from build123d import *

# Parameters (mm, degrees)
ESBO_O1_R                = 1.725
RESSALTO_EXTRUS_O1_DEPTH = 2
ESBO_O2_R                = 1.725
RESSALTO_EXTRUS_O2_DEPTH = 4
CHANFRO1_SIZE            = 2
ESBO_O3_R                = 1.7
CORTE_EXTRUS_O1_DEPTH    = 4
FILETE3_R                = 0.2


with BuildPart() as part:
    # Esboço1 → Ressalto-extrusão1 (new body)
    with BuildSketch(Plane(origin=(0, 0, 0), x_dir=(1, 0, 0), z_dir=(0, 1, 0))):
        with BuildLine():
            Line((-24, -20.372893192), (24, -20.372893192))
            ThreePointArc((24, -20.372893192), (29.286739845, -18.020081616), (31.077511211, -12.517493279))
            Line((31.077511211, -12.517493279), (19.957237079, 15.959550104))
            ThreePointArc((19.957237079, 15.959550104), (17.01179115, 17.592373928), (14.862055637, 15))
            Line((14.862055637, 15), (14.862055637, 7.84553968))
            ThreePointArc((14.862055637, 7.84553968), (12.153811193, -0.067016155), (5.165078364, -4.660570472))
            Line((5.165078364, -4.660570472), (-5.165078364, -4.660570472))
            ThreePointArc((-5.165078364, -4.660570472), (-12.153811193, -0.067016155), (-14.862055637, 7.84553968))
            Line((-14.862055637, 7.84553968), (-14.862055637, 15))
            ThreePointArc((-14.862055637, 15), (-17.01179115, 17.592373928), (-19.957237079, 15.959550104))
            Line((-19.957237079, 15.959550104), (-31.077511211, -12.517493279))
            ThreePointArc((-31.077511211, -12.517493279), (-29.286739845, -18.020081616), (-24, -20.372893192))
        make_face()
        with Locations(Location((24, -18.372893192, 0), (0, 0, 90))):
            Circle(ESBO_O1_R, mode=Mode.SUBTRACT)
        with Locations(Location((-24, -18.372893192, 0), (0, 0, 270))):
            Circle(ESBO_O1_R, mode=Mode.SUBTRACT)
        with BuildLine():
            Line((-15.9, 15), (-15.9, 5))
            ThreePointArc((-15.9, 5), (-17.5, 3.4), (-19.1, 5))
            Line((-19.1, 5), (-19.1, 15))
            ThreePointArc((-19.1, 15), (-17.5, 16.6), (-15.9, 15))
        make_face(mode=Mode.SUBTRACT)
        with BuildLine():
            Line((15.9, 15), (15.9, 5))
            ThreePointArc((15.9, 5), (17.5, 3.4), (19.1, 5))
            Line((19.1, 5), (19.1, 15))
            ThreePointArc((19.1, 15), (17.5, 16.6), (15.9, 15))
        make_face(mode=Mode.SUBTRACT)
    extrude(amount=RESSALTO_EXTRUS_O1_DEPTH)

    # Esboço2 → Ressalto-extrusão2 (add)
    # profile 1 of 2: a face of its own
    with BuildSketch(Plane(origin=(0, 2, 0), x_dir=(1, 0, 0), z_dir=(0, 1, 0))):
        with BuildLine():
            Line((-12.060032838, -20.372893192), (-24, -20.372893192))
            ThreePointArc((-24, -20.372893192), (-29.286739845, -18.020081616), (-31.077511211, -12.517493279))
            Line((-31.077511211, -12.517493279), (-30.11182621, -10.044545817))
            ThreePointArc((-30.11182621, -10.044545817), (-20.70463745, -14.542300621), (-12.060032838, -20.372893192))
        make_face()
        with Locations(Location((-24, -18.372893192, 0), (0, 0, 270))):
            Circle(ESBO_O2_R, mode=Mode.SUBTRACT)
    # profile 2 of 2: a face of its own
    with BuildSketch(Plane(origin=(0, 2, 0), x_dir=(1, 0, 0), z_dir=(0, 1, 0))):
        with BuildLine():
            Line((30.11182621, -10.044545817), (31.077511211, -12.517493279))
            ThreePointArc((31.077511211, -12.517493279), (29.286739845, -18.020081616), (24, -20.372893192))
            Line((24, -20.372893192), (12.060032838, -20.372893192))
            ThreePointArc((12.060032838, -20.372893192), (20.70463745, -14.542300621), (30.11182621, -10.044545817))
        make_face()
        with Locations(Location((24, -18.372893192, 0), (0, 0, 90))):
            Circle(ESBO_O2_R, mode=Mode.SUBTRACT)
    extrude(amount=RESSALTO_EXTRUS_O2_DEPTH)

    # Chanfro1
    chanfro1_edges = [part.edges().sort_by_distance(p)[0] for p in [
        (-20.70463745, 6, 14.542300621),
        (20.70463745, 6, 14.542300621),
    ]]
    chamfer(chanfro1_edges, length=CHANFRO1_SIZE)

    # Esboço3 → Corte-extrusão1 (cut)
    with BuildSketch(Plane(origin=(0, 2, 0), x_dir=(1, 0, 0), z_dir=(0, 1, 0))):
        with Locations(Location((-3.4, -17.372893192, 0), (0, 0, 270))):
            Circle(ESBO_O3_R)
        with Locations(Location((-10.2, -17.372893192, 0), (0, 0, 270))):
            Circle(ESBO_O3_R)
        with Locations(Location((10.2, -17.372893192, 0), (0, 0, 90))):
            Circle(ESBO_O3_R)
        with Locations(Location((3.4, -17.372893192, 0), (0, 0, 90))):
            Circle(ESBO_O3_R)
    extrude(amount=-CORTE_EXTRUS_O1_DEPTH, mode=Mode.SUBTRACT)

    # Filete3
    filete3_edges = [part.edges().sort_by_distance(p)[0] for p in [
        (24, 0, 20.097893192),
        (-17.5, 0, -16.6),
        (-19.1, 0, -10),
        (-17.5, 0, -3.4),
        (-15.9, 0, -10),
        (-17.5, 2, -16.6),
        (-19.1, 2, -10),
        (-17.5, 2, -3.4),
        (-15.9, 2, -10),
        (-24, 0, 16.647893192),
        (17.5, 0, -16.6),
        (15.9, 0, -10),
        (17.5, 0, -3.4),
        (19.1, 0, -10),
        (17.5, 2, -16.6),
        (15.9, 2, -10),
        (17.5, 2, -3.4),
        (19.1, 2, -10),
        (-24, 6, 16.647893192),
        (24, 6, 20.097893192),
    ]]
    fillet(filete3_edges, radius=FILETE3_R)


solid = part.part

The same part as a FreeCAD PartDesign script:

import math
import FreeCAD as App
import Part
import Sketcher


def edges_at(feature, points):
    """Names of the edges that pass closest to the given points."""
    edges = feature.Shape.Edges
    near = lambda p: min(range(len(edges)), key=lambda i: edges[i].distToShape(Part.Vertex(*p))[0])
    return sorted({f"Edge{near(p) + 1}" for p in points})

doc = App.newDocument("Part")
body = doc.addObject("PartDesign::Body", "Body")

# Sketch on XZ plane
sketch1 = doc.addObject("Sketcher::SketchObject", "Sketch")
body.addObject(sketch1)
sketch1.AttachmentSupport = (doc.XZ_Plane, [""])
sketch1.MapMode = "FlatFace"
sketch1.addGeometry([
    Part.LineSegment(App.Vector(-24, 20.4, 0), App.Vector(24, 20.4, 0)),  # 0
    Part.ArcOfCircle(Part.Circle(App.Vector(24, 13.3, 0), App.Vector(0, 0, 1), 7.1), math.radians(-6), math.radians(90)),  # 1
    Part.LineSegment(App.Vector(31.1, 12.5, 0), App.Vector(20, -16, 0)),  # 2
    Part.ArcOfCircle(Part.Circle(App.Vector(17.5, -15, 0), App.Vector(0, 0, 1), 2.6), math.radians(180), math.radians(339)),  # 3
    Part.LineSegment(App.Vector(14.9, -15, 0), App.Vector(14.9, -7.8, 0)),  # 4
    Part.ArcOfCircle(Part.Circle(App.Vector(1.9, -7.8, 0), App.Vector(0, 0, 1), 12.9), math.radians(0), math.radians(76)),  # 5
    Part.LineSegment(App.Vector(5.2, 4.7, 0), App.Vector(-5.2, 4.7, 0)),  # 6
    Part.ArcOfCircle(Part.Circle(App.Vector(-1.9, -7.8, 0), App.Vector(0, 0, 1), 12.9), math.radians(104), math.radians(180)),  # 7
    Part.LineSegment(App.Vector(-14.9, -7.8, 0), App.Vector(-14.9, -15, 0)),  # 8
    Part.ArcOfCircle(Part.Circle(App.Vector(-17.5, -15, 0), App.Vector(0, 0, 1), 2.6), math.radians(-159), math.radians(0)),  # 9
    Part.LineSegment(App.Vector(-20, -16, 0), App.Vector(-31.1, 12.5, 0)),  # 10
    Part.ArcOfCircle(Part.Circle(App.Vector(-24, 13.3, 0), App.Vector(0, 0, 1), 7.1), math.radians(90), math.radians(186)),  # 11
    Part.Circle(App.Vector(-24, 18.4, 0), App.Vector(0, 0, 1), 1.7),  # 12
    Part.Circle(App.Vector(24, 18.4, 0), App.Vector(0, 0, 1), 1.7),  # 13
    Part.ArcOfCircle(Part.Circle(App.Vector(-17.5, -15, 0), App.Vector(0, 0, 1), 1.6), math.radians(180), math.radians(360)),  # 14
    Part.LineSegment(App.Vector(-15.9, -15, 0), App.Vector(-15.9, -5, 0)),  # 15
    Part.ArcOfCircle(Part.Circle(App.Vector(-17.5, -5, 0), App.Vector(0, 0, 1), 1.6), math.radians(0), math.radians(180)),  # 16
    Part.LineSegment(App.Vector(-19.1, -5, 0), App.Vector(-19.1, -15, 0)),  # 17
    Part.LineSegment(App.Vector(15.9, -5, 0), App.Vector(15.9, -15, 0)),  # 18
    Part.ArcOfCircle(Part.Circle(App.Vector(17.5, -15, 0), App.Vector(0, 0, 1), 1.6), math.radians(180), math.radians(360)),  # 19
    Part.LineSegment(App.Vector(19.1, -15, 0), App.Vector(19.1, -5, 0)),  # 20
    Part.ArcOfCircle(Part.Circle(App.Vector(17.5, -5, 0), App.Vector(0, 0, 1), 1.6), math.radians(0), math.radians(180)),  # 21
], False)
sketch1.addConstraint([
    Sketcher.Constraint("Tangent", 0, 2, 1, 2),
    Sketcher.Constraint("Coincident", 1, 1, 2, 1),
    Sketcher.Constraint("Tangent", 2, 2, 3, 2),
    Sketcher.Constraint("Tangent", 3, 1, 4, 1),
    Sketcher.Constraint("Tangent", 4, 2, 5, 1),
    Sketcher.Constraint("Coincident", 5, 2, 6, 1),
    Sketcher.Constraint("Coincident", 6, 2, 7, 1),
    Sketcher.Constraint("Tangent", 7, 2, 8, 1),
    Sketcher.Constraint("Tangent", 8, 2, 9, 2),
    Sketcher.Constraint("Tangent", 9, 1, 10, 1),
    Sketcher.Constraint("Coincident", 10, 2, 11, 2),
    Sketcher.Constraint("Tangent", 11, 1, 0, 1),
    Sketcher.Constraint("Tangent", 14, 2, 15, 1),
    Sketcher.Constraint("Tangent", 15, 2, 16, 1),
    Sketcher.Constraint("Tangent", 16, 2, 17, 1),
    Sketcher.Constraint("Tangent", 17, 2, 14, 1),
    Sketcher.Constraint("Tangent", 18, 2, 19, 1),
    Sketcher.Constraint("Tangent", 19, 2, 20, 1),
    Sketcher.Constraint("Tangent", 20, 2, 21, 1),
    Sketcher.Constraint("Tangent", 21, 2, 18, 1),
    Sketcher.Constraint("Horizontal", 0),
    Sketcher.Constraint("Vertical", 4),
    Sketcher.Constraint("Horizontal", 6),
    Sketcher.Constraint("Vertical", 8),
    Sketcher.Constraint("Vertical", 15),
    Sketcher.Constraint("Vertical", 17),
    Sketcher.Constraint("Vertical", 18),
    Sketcher.Constraint("Vertical", 20),
    Sketcher.Constraint("Coincident", 14, 3, 9, 3),
    Sketcher.Constraint("Coincident", 19, 3, 3, 3),
    Sketcher.Constraint("Equal", 5, 7),
    Sketcher.Constraint("Equal", 3, 9),
    Sketcher.Constraint("Equal", 1, 11),
    Sketcher.Constraint("Equal", 12, 13),
    Sketcher.Constraint("Equal", 16, 19),
    Sketcher.Constraint("Symmetric", 5, 3, 7, 3, -2),
    Sketcher.Constraint("Symmetric", 12, 3, 13, 3, -2),
    Sketcher.Constraint("Symmetric", 2, 2, 9, 1, -2),
    Sketcher.Constraint("Horizontal", 16, 3, 21, 3),
    Sketcher.Constraint("Horizontal", 1, 1, 10, 2),
    Sketcher.Constraint("Vertical", 11, 3, 12, 3),
    Sketcher.Constraint("Radius", 14, 1.6),
    Sketcher.Constraint("Diameter", 12, 3.45),
    Sketcher.Constraint("DistanceX", 0, 1, 0, 2, 48.0),
    Sketcher.Constraint("DistanceY", 15, 1, 15, 2, 10.0),
    Sketcher.Constraint("DistanceY", 3, 3, -1, 1, 15.0),
    Sketcher.Constraint("Radius", 5, 12.913001),
    Sketcher.Constraint("DistanceX", 9, 3, 3, 3, 35.0),
    Sketcher.Constraint("DistanceY", 13, 3, 0, 2, 2.0),
    Sketcher.Constraint("Radius", 1, 7.116027),
    Sketcher.Constraint("Radius", 3, 2.637944),
    Sketcher.Constraint("DistanceY", 4, 1, 4, 2, 7.15446),
    Sketcher.Constraint("DistanceY", 1, 1, 13, 3, 5.8554),
    Sketcher.Constraint("Distance", 2, 30.571269),
    Sketcher.Constraint("DistanceX", 6, 2, 6, 1, 10.330157),
])
pad1 = doc.addObject("PartDesign::Pad", "Pad")
body.addObject(pad1)
pad1.Profile = sketch1
pad1.Length = 2
pad1.Reversed = True

# Sketch on XZ plane
sketch2 = doc.addObject("Sketcher::SketchObject", "Sketch001")
body.addObject(sketch2)
sketch2.AttachmentSupport = (doc.XZ_Plane, [""])
sketch2.MapMode = "FlatFace"
sketch2.AttachmentOffset = App.Placement(App.Vector(0, 0, -2), App.Rotation())
sketch2.addGeometry([
    Part.LineSegment(App.Vector(-24, 20.4, 0), App.Vector(-12.1, 20.4, 0)),  # 0
    Part.ArcOfCircle(Part.Circle(App.Vector(-55.9, 76, 0), App.Vector(0, 0, 1), 70.8), math.radians(-68.67), math.radians(-51.78)),  # 1
    Part.LineSegment(App.Vector(-30.1, 10, 0), App.Vector(-31.1, 12.5, 0)),  # 2
    Part.ArcOfCircle(Part.Circle(App.Vector(-24, 13.3, 0), App.Vector(0, 0, 1), 7.1), math.radians(90), math.radians(186)),  # 3
    Part.Circle(App.Vector(-24, 18.4, 0), App.Vector(0, 0, 1), 1.7),  # 4
    Part.LineSegment(App.Vector(31.1, 12.5, 0), App.Vector(30.1, 10, 0)),  # 5
    Part.ArcOfCircle(Part.Circle(App.Vector(55.9, 76, 0), App.Vector(0, 0, 1), 70.8), math.radians(-128.22), math.radians(-111.33)),  # 6
    Part.LineSegment(App.Vector(12.1, 20.4, 0), App.Vector(24, 20.4, 0)),  # 7
    Part.ArcOfCircle(Part.Circle(App.Vector(24, 13.3, 0), App.Vector(0, 0, 1), 7.1), math.radians(-6), math.radians(90)),  # 8
    Part.Circle(App.Vector(24, 18.4, 0), App.Vector(0, 0, 1), 1.7),  # 9
], False)
sketch2.addConstraint([
    Sketcher.Constraint("Coincident", 0, 2, 1, 2),
    Sketcher.Constraint("Coincident", 1, 1, 2, 1),
    Sketcher.Constraint("Coincident", 2, 2, 3, 2),
    Sketcher.Constraint("Tangent", 3, 1, 0, 1),
    Sketcher.Constraint("Coincident", 5, 2, 6, 2),
    Sketcher.Constraint("Coincident", 6, 1, 7, 1),
    Sketcher.Constraint("Tangent", 7, 2, 8, 2),
    Sketcher.Constraint("Coincident", 8, 1, 5, 1),
    Sketcher.Constraint("Horizontal", 0),
    Sketcher.Constraint("Horizontal", 7),
    Sketcher.Constraint("Equal", 1, 6),
    Sketcher.Constraint("Equal", 3, 8),
    Sketcher.Constraint("Equal", 4, 9),
    Sketcher.Constraint("Symmetric", 1, 3, 6, 3, -2),
    Sketcher.Constraint("Symmetric", 3, 3, 8, 3, -2),
    Sketcher.Constraint("Symmetric", 4, 3, 9, 3, -2),
    Sketcher.Constraint("Horizontal", 1, 1, 5, 2),
    Sketcher.Constraint("Horizontal", 2, 2, 8, 1),
    Sketcher.Constraint("Vertical", 3, 3, 4, 3),
    Sketcher.Constraint("Diameter", 4, 3.45),
    Sketcher.Constraint("DistanceX", 3, 3, -1, 1, 24.0),
    Sketcher.Constraint("DistanceY", 4, 3, 0, 2, 2.0),
    Sketcher.Constraint("Radius", 1, 70.804088),
    Sketcher.Constraint("Radius", 3, 7.116027),
    Sketcher.Constraint("DistanceY", 2, 2, 4, 3, 5.8554),
    Sketcher.Constraint("Distance", 2, 2.65481),
    Sketcher.Constraint("DistanceX", 0, 1, 0, 2, 11.939967),
    Sketcher.Constraint("DistanceY", 1, 1, 3, 3, 3.212321),
    Sketcher.Constraint("DistanceY", -1, 1, 1, 3, 75.998336),
])
pad2 = doc.addObject("PartDesign::Pad", "Pad001")
body.addObject(pad2)
pad2.Profile = sketch2
pad2.Length = 4
pad2.Reversed = True
doc.recompute()

chamfer = doc.addObject("PartDesign::Chamfer", "Chamfer")
body.addObject(chamfer)
chamfer.Base = (pad2, edges_at(pad2, [(-20.705, 6, 14.542), (20.705, 6, 14.542)]))
chamfer.Size = 2

# Sketch on XZ plane
sketch3 = doc.addObject("Sketcher::SketchObject", "Sketch002")
body.addObject(sketch3)
sketch3.AttachmentSupport = (doc.XZ_Plane, [""])
sketch3.MapMode = "FlatFace"
sketch3.AttachmentOffset = App.Placement(App.Vector(0, 0, -2), App.Rotation())
sketch3.addGeometry([
    Part.Circle(App.Vector(-3.4, 17.4, 0), App.Vector(0, 0, 1), 1.7),
    Part.Circle(App.Vector(-10.2, 17.4, 0), App.Vector(0, 0, 1), 1.7),
    Part.Circle(App.Vector(10.2, 17.4, 0), App.Vector(0, 0, 1), 1.7),
    Part.Circle(App.Vector(3.4, 17.4, 0), App.Vector(0, 0, 1), 1.7),
], False)
sketch3.addConstraint([
    Sketcher.Constraint("Equal", 0, 1),
    Sketcher.Constraint("Equal", 1, 2),
    Sketcher.Constraint("Equal", 2, 3),
    Sketcher.Constraint("Symmetric", 1, 3, 2, 3, -2),
    Sketcher.Constraint("Symmetric", 0, 3, 3, 3, -2),
    Sketcher.Constraint("Horizontal", 0, 3, 1, 3),
    Sketcher.Constraint("Diameter", 0, 3.4),
    Sketcher.Constraint("DistanceX", 0, 3, -1, 1, 3.4),
    Sketcher.Constraint("DistanceX", 1, 3, -1, 1, 10.2),
    Sketcher.Constraint("DistanceY", -1, 1, 0, 3, 17.372893),
])
pocket1 = doc.addObject("PartDesign::Pocket", "Pocket")
body.addObject(pocket1)
pocket1.Profile = sketch3
pocket1.Length = 4
pocket1.Reversed = True
doc.recompute()

fillet = doc.addObject("PartDesign::Fillet", "Fillet")
body.addObject(fillet)
fillet.Base = (pocket1, edges_at(pocket1, [
    (24, 0, 20.098),
    (-17.5, 0, -16.6),
    (-19.1, 0, -10),
    (-17.5, 0, -3.4),
    (-15.9, 0, -10),
    (-17.5, 2, -16.6),
    (-19.1, 2, -10),
    (-17.5, 2, -3.4),
    (-15.9, 2, -10),
    (-24, 0, 16.648),
    (17.5, 0, -16.6),
    (15.9, 0, -10),
    (17.5, 0, -3.4),
    (19.1, 0, -10),
    (17.5, 2, -16.6),
    (15.9, 2, -10),
    (17.5, 2, -3.4),
    (19.1, 2, -10),
    (-24, 6, 16.648),
    (24, 6, 20.098),
]))
fillet.Radius = 0.2

doc.recompute()
